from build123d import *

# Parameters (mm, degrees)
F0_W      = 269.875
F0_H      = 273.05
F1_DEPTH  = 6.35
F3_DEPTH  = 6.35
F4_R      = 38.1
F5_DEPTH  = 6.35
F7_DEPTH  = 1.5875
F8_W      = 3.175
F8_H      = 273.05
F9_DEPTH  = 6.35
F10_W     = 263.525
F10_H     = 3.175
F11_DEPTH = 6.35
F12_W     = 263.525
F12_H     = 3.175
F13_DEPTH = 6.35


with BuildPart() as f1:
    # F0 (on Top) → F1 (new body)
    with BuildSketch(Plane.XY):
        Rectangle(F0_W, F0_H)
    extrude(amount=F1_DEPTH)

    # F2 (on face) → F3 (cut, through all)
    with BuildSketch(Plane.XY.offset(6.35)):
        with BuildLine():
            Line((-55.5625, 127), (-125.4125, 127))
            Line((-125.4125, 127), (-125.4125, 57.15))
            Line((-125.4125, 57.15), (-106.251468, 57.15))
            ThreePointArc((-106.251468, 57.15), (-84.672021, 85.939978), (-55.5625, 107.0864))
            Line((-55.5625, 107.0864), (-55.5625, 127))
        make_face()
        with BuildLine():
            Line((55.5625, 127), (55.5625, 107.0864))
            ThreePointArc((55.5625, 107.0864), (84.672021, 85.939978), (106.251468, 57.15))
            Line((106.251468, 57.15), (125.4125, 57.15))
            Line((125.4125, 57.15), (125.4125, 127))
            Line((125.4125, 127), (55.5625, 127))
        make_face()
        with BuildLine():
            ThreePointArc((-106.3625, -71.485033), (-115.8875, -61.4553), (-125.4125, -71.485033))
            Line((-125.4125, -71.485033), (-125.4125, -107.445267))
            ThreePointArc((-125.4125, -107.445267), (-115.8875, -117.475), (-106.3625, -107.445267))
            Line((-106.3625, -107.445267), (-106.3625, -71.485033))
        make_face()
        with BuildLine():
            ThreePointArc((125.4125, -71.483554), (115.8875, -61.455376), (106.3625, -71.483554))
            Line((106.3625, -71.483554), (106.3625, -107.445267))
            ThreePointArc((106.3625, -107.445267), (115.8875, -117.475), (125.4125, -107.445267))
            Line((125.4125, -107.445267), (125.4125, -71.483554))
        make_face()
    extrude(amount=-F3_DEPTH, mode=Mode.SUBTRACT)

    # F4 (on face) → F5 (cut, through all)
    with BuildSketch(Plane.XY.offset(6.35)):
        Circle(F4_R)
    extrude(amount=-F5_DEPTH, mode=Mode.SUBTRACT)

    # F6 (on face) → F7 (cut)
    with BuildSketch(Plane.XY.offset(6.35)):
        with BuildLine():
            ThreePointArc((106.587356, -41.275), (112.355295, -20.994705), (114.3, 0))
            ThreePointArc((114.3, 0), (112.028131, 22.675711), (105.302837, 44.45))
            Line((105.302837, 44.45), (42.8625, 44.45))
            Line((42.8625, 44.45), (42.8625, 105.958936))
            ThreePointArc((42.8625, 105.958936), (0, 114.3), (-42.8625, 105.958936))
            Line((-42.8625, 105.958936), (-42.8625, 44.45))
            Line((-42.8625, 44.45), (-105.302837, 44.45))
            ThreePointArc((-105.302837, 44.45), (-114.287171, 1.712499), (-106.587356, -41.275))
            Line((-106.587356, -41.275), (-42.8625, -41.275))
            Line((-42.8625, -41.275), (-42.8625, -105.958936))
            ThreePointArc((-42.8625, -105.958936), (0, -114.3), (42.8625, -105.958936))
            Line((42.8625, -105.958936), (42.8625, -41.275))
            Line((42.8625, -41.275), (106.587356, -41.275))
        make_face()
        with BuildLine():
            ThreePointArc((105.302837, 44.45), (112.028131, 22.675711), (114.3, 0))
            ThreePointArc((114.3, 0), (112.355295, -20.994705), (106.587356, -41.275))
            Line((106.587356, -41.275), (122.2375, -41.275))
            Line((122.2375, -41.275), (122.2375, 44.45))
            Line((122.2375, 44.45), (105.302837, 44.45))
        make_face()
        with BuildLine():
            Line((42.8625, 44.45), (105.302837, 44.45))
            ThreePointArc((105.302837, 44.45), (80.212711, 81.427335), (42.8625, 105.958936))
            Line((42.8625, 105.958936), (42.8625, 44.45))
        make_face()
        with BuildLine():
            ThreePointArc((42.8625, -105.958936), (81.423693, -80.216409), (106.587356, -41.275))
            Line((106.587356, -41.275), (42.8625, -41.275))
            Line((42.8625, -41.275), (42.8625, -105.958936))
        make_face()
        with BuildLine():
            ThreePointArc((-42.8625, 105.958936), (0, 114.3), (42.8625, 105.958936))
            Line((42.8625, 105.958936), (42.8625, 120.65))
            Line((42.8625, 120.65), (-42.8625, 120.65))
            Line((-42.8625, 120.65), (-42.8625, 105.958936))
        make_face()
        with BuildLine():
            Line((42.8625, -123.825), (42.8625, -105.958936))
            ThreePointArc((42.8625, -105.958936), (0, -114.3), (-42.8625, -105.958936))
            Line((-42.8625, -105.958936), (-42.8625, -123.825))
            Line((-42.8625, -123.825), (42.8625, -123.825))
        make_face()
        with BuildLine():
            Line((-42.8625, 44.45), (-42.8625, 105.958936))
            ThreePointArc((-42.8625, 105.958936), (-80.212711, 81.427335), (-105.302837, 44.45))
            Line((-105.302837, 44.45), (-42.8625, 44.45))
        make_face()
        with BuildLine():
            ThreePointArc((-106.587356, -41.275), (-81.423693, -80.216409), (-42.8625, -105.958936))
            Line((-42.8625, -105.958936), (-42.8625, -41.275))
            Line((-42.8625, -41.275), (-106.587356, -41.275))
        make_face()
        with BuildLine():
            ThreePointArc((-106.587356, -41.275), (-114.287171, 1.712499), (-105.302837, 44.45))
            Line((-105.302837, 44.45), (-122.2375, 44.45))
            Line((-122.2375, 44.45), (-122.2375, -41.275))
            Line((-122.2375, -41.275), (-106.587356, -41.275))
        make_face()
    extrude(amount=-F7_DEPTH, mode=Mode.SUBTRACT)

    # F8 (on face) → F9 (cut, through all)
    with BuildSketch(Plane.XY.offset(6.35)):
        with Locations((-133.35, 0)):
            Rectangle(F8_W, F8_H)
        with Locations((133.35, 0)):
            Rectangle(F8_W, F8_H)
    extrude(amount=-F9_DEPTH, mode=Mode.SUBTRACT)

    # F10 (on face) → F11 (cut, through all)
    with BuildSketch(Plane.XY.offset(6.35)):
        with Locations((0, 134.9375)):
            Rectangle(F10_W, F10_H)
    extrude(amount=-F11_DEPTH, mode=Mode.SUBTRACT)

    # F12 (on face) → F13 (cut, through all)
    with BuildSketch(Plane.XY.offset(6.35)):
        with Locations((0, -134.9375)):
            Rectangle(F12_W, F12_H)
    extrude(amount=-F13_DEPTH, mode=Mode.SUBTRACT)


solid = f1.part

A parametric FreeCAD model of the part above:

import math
import FreeCAD as App
import Part
import Sketcher

V = App.Vector
Q = App.Units.Quantity


def add_polygon(sketch, points):
    """Adds a closed chain of lines whose ends are joined by coincident constraints."""
    first, n = sketch.GeometryCount, len(points)
    for a, b in zip(points, points[1:] + points[:1]):
        sketch.addGeometry(Part.LineSegment(App.Vector(*a, 0), App.Vector(*b, 0)), False)
    for i in range(n):
        sketch.addConstraint(Sketcher.Constraint("Coincident", first + i, 2, first + (i + 1) % n, 1))

doc = App.newDocument("Part")
body = doc.addObject("PartDesign::Body", "Body")

# Sketch on XY plane
sketch1 = body.newObject("Sketcher::SketchObject", "Sketch")
sketch1.AttachmentSupport = (doc.getObject("XY_Plane"), [""])
sketch1.MapMode = "FlatFace"
add_polygon(sketch1, [(-134.9375, 136.525), (-134.9375, -136.525), (134.9375, -136.525), (134.9375, 136.525)])  # lines 0-3
sketch1.addConstraint([
    Sketcher.Constraint("Vertical", 0),
    Sketcher.Constraint("Horizontal", 1),
    Sketcher.Constraint("Vertical", 2),
    Sketcher.Constraint("Horizontal", 3),
    Sketcher.Constraint("Symmetric", 0, 2, 2, 2, -1, 1),
    Sketcher.Constraint("DistanceY", 0, 2, 0, 1, Q("10.75 in")),
    Sketcher.Constraint("DistanceX", 1, 1, 1, 2, Q("10.625 in")),
])
pad1 = body.newObject("PartDesign::Pad", "Pad")
pad1.Profile = sketch1
pad1.Length = Q("0.25 in")

# Sketch on XY plane
sketch2 = body.newObject("Sketcher::SketchObject", "Sketch001")
sketch2.AttachmentSupport = (doc.getObject("XY_Plane"), [""])
sketch2.MapMode = "FlatFace"
sketch2.AttachmentOffset = App.Placement(V(0, 0, 0.25 * 25.4), App.Rotation())
sketch2.addGeometry([
    Part.LineSegment(V(-55.5625, 127, 0), V(-125.4125, 127, 0)),  # 0
    Part.LineSegment(V(-125.4125, 127, 0), V(-125.4125, 57.15, 0)),  # 1
    Part.LineSegment(V(-125.4125, 57.15, 0), V(-106.251468, 57.15, 0)),  # 2
    Part.ArcOfCircle(Part.Circle(V(-0.000008, -0.008087, 0), V(0, 0, 1), 120.649988), math.radians(117.421074), math.radians(151.721923)),  # 3
    Part.LineSegment(V(-55.5625, 107.0864, 0), V(-55.5625, 127, 0)),  # 4
    Part.LineSegment(V(55.5625, 127, 0), V(55.5625, 107.0864, 0)),  # 5
    Part.ArcOfCircle(Part.Circle(V(0.000008, -0.008087, 0), V(0, 0, 1), 120.649988), math.radians(28.278077), math.radians(62.578926)),  # 6
    Part.LineSegment(V(106.251468, 57.15, 0), V(125.4125, 57.15, 0)),  # 7
    Part.LineSegment(V(125.4125, 57.15, 0), V(125.4125, 127, 0)),  # 8
    Part.LineSegment(V(125.4125, 127, 0), V(55.5625, 127, 0)),  # 9
    Part.ArcOfCircle(Part.Circle(V(-115.8875, -70.993, 0), V(0, 0, 1), 9.5377), math.radians(-2.9571), math.radians(182.9571)),  # 10
    Part.LineSegment(V(-125.4125, -71.485033, 0), V(-125.4125, -107.445267, 0)),  # 11
    Part.ArcOfCircle(Part.Circle(V(-115.8875, -107.9373, 0), V(0, 0, 1), 9.5377), math.radians(177.0429), math.radians(362.9571)),  # 12
    Part.LineSegment(V(-106.3625, -107.445267, 0), V(-106.3625, -71.485033, 0)),  # 13
    Part.ArcOfCircle(Part.Circle(V(115.8875, -70.993, 0), V(0, 0, 1), 9.537624), math.radians(-2.948228), math.radians(182.948228)),  # 14
    Part.LineSegment(V(106.3625, -71.483554, 0), V(106.3625, -107.445267, 0)),  # 15
    Part.ArcOfCircle(Part.Circle(V(115.8875, -107.9373, 0), V(0, 0, 1), 9.5377), math.radians(177.0429), math.radians(362.9571)),  # 16
    Part.LineSegment(V(125.4125, -107.445267, 0), V(125.4125, -71.483554, 0)),  # 17
], False)
sketch2.addConstraint([
    Sketcher.Constraint("Coincident", 0, 2, 1, 1),
    Sketcher.Constraint("Coincident", 1, 2, 2, 1),
    Sketcher.Constraint("Coincident", 2, 2, 3, 2),
    Sketcher.Constraint("Coincident", 3, 1, 4, 1),
    Sketcher.Constraint("Coincident", 4, 2, 0, 1),
    Sketcher.Constraint("Coincident", 5, 2, 6, 2),
    Sketcher.Constraint("Coincident", 6, 1, 7, 1),
    Sketcher.Constraint("Coincident", 7, 2, 8, 1),
    Sketcher.Constraint("Coincident", 8, 2, 9, 1),
    Sketcher.Constraint("Coincident", 9, 2, 5, 1),
    Sketcher.Constraint("Coincident", 10, 2, 11, 1),
    Sketcher.Constraint("Coincident", 11, 2, 12, 1),
    Sketcher.Constraint("Coincident", 12, 2, 13, 1),
    Sketcher.Constraint("Coincident", 13, 2, 10, 1),
    Sketcher.Constraint("Coincident", 14, 2, 15, 1),
    Sketcher.Constraint("Coincident", 15, 2, 16, 1),
    Sketcher.Constraint("Coincident", 16, 2, 17, 1),
    Sketcher.Constraint("Coincident", 17, 2, 14, 1),
    Sketcher.Constraint("Horizontal", 0),
    Sketcher.Constraint("Vertical", 1),
    Sketcher.Constraint("Horizontal", 2),
    Sketcher.Constraint("Vertical", 4),
    Sketcher.Constraint("Vertical", 5),
    Sketcher.Constraint("Horizontal", 7),
    Sketcher.Constraint("Vertical", 8),
    Sketcher.Constraint("Horizontal", 9),
    Sketcher.Constraint("Vertical", 11),
    Sketcher.Constraint("Vertical", 13),
    Sketcher.Constraint("Vertical", 15),
    Sketcher.Constraint("Vertical", 17),
    Sketcher.Constraint("Equal", 3, 6),
    Sketcher.Constraint("Equal", 10, 12),
    Sketcher.Constraint("Equal", 12, 16),
    Sketcher.Constraint("Symmetric", 3, 3, 6, 3, -2),
    Sketcher.Constraint("Symmetric", 10, 3, 14, 3, -2),
    Sketcher.Constraint("Symmetric", 12, 3, 16, 3, -2),
    Sketcher.Constraint("Symmetric", 1, 2, 7, 2, -2),
    Sketcher.Constraint("Symmetric", 4, 2, 9, 2, -2),
    Sketcher.Constraint("Horizontal", 11, 2, 12, 2),
    Sketcher.Constraint("Horizontal", 10, 2, 13, 2),
    Sketcher.Constraint("Horizontal", 12, 2, 15, 2),
    Sketcher.Constraint("Horizontal", 15, 2, 16, 2),
    Sketcher.Constraint("Vertical", 1, 2, 10, 2),
    Sketcher.Constraint("Equal", 9, 1),
    Sketcher.Constraint("DistanceY", -1, 1, 0, 2, Q("5 in")),
    Sketcher.Constraint("DistanceX", 0, 2, 0, 1, Q("2.75 in")),
    Sketcher.Constraint("Radius", 10, Q("0.3755 in")),
    Sketcher.Constraint("DistanceX", 0, 2, 14, 3, Q("9.5 in")),
    Sketcher.Constraint("DistanceY", 4, 1, 4, 2, Q("0.784 in")),
    Sketcher.Constraint("DistanceX", 11, 2, 12, 2, Q("0.75 in")),
    Sketcher.Constraint("DistanceY", 10, 3, -1, 1, Q("2.795 in")),
    Sketcher.Constraint("Radius", 3, Q("120.649988 mm")),
    Sketcher.Constraint("DistanceY", 12, 3, -1, 1, Q("4.2495 in")),
    Sketcher.Constraint("Radius", 14, Q("9.537624 mm")),
    Sketcher.Constraint("DistanceX", 2, 1, 2, 2, Q("19.161032 mm")),
])
pocket1 = body.newObject("PartDesign::Pocket", "Pocket")
pocket1.Profile = sketch2
pocket1.Type = "ThroughAll"

# Sketch on XY plane
sketch3 = body.newObject("Sketcher::SketchObject", "Sketch002")
sketch3.AttachmentSupport = (doc.getObject("XY_Plane"), [""])
sketch3.MapMode = "FlatFace"
sketch3.AttachmentOffset = App.Placement(V(0, 0, 0.25 * 25.4), App.Rotation())
sketch3.addGeometry(Part.Circle(V(0, 0, 0), V(0, 0, 1), 38.1), False)
sketch3.addConstraint([
    Sketcher.Constraint("Coincident", 0, 3, -1, 1),
    Sketcher.Constraint("Diameter", 0, Q("3 in")),
])
pocket2 = body.newObject("PartDesign::Pocket", "Pocket001")
pocket2.Profile = sketch3
pocket2.Type = "ThroughAll"

# Sketch on XY plane
sketch4 = body.newObject("Sketcher::SketchObject", "Sketch003")
sketch4.AttachmentSupport = (doc.getObject("XY_Plane"), [""])
sketch4.MapMode = "FlatFace"
sketch4.AttachmentOffset = App.Placement(V(0, 0, 0.25 * 25.4), App.Rotation())
sketch4.addGeometry([
    Part.ArcOfCircle(Part.Circle(V(0, 0, 0), V(0, 0, 1), 114.3), math.radians(-158.831551), math.radians(-112.024313)),  # 0
    Part.LineSegment(V(-42.8625, -105.958936, 0), V(-42.8625, -123.825, 0)),  # 1
    Part.LineSegment(V(-42.8625, -123.825, 0), V(42.8625, -123.825, 0)),  # 2
    Part.LineSegment(V(42.8625, -123.825, 0), V(42.8625, -105.958936, 0)),  # 3
    Part.ArcOfCircle(Part.Circle(V(0, 0, 0), V(0, 0, 1), 114.3), math.radians(-67.975687), math.radians(-21.168449)),  # 4
    Part.LineSegment(V(106.587356, -41.275, 0), V(122.2375, -41.275, 0)),  # 5
    Part.LineSegment(V(122.2375, -41.275, 0), V(122.2375, 44.45, 0)),  # 6
    Part.LineSegment(V(122.2375, 44.45, 0), V(105.302837, 44.45, 0)),  # 7
    Part.ArcOfCircle(Part.Circle(V(-0.000005, -0.000004, 0), V(0, 0, 1), 114.300006), math.radians(22.885382), math.radians(67.975686)),  # 8
    Part.LineSegment(V(42.8625, 105.958936, 0), V(42.8625, 120.65, 0)),  # 9
    Part.LineSegment(V(42.8625, 120.65, 0), V(-42.8625, 120.65, 0)),  # 10
    Part.LineSegment(V(-42.8625, 120.65, 0), V(-42.8625, 105.958936, 0)),  # 11
    Part.ArcOfCircle(Part.Circle(V(0.000005, -0.000004, 0), V(0, 0, 1), 114.300006), math.radians(112.024314), math.radians(157.114618)),  # 12
    Part.LineSegment(V(-105.302837, 44.45, 0), V(-122.2375, 44.45, 0)),  # 13
    Part.LineSegment(V(-122.2375, 44.45, 0), V(-122.2375, -41.275, 0)),  # 14
    Part.LineSegment(V(-122.2375, -41.275, 0), V(-106.587356, -41.275, 0)),  # 15
], False)
sketch4.addConstraint([
    Sketcher.Constraint("Coincident", 0, 2, 1, 1),
    Sketcher.Constraint("Coincident", 1, 2, 2, 1),
    Sketcher.Constraint("Coincident", 2, 2, 3, 1),
    Sketcher.Constraint("Coincident", 3, 2, 4, 1),
    Sketcher.Constraint("Coincident", 4, 2, 5, 1),
    Sketcher.Constraint("Coincident", 5, 2, 6, 1),
    Sketcher.Constraint("Coincident", 6, 2, 7, 1),
    Sketcher.Constraint("Coincident", 7, 2, 8, 1),
    Sketcher.Constraint("Coincident", 8, 2, 9, 1),
    Sketcher.Constraint("Coincident", 9, 2, 10, 1),
    Sketcher.Constraint("Coincident", 10, 2, 11, 1),
    Sketcher.Constraint("Coincident", 11, 2, 12, 1),
    Sketcher.Constraint("Coincident", 12, 2, 13, 1),
    Sketcher.Constraint("Coincident", 13, 2, 14, 1),
    Sketcher.Constraint("Coincident", 14, 2, 15, 1),
    Sketcher.Constraint("Coincident", 15, 2, 0, 1),
    Sketcher.Constraint("Vertical", 1),
    Sketcher.Constraint("Horizontal", 2),
    Sketcher.Constraint("Vertical", 3),
    Sketcher.Constraint("Horizontal", 5),
    Sketcher.Constraint("Vertical", 6),
    Sketcher.Constraint("Horizontal", 7),
    Sketcher.Constraint("Vertical", 9),
    Sketcher.Constraint("Horizontal", 10),
    Sketcher.Constraint("Vertical", 11),
    Sketcher.Constraint("Horizontal", 13),
    Sketcher.Constraint("Vertical", 14),
    Sketcher.Constraint("Horizontal", 15),
    Sketcher.Constraint("Coincident", 0, 3, -1, 1),
    Sketcher.Constraint("Coincident", 4, 3, -1, 1),
    Sketcher.Constraint("Coincident", 8, 3, -1, 1),
    Sketcher.Constraint("Coincident", 12, 3, -1, 1),
    Sketcher.Constraint("Equal", 0, 4),
    Sketcher.Constraint("Equal", 8, 12),
    Sketcher.Constraint("Symmetric", 0, 2, 8, 2, -1, 1),
    Sketcher.Constraint("Symmetric", 6, 2, 13, 2, -2),
    Sketcher.Constraint("Horizontal", 0, 2, 3, 2),
    Sketcher.Constraint("Horizontal", 8, 2, 11, 2),
    Sketcher.Constraint("Horizontal", 5, 2, 14, 2),
    Sketcher.Constraint("Equal", 10, 6),
    Sketcher.Constraint("Radius", 0, Q("4.5 in")),
    Sketcher.Constraint("DistanceY", 7, 2, 9, 2, Q("3 in")),
    Sketcher.Constraint("DistanceX", 2, 1, 2, 2, Q("3.375 in")),
    Sketcher.Constraint("DistanceY", -1, 1, 6, 2, Q("1.75 in")),
    Sketcher.Constraint("DistanceY", 2, 2, 4, 2, Q("3.25 in")),
    Sketcher.Constraint("DistanceX", -1, 1, 5, 2, Q("4.8125 in")),
])
pocket3 = body.newObject("PartDesign::Pocket", "Pocket002")
pocket3.Profile = sketch4
pocket3.Length = Q("0.0625 in")

# Sketch on XY plane
sketch5 = body.newObject("Sketcher::SketchObject", "Sketch004")
sketch5.AttachmentSupport = (doc.getObject("XY_Plane"), [""])
sketch5.MapMode = "FlatFace"
sketch5.AttachmentOffset = App.Placement(V(0, 0, 0.25 * 25.4), App.Rotation())
add_polygon(sketch5, [(-134.9375, 136.525), (-134.9375, -136.525), (-131.7625, -136.525), (-131.7625, 136.525)])  # lines 0-3
add_polygon(sketch5, [(131.7625, 136.525), (131.7625, -136.525), (134.9375, -136.525), (134.9375, 136.525)])  # lines 4-7
sketch5.addConstraint([
    Sketcher.Constraint("Vertical", 0),
    Sketcher.Constraint("Horizontal", 1),
    Sketcher.Constraint("Vertical", 2),
    Sketcher.Constraint("Horizontal", 3),
    Sketcher.Constraint("Vertical", 4),
    Sketcher.Constraint("Horizontal", 5),
    Sketcher.Constraint("Vertical", 6),
    Sketcher.Constraint("Horizontal", 7),
    Sketcher.Constraint("Symmetric", 2, 2, 4, 2, -1, 1),
    Sketcher.Constraint("Symmetric", 0, 2, 6, 2, -1, 1),
    Sketcher.Constraint("Horizontal", 1, 2, 4, 2),
    Sketcher.Constraint("DistanceY", 0, 2, 0, 1, Q("10.75 in")),
    Sketcher.Constraint("DistanceX", 0, 2, 4, 2, Q("10.5 in")),
    Sketcher.Constraint("DistanceX", 1, 1, 1, 2, Q("0.125 in")),
])
pocket4 = body.newObject("PartDesign::Pocket", "Pocket003")
pocket4.Profile = sketch5
pocket4.Type = "ThroughAll"

# Sketch on XY plane
sketch6 = body.newObject("Sketcher::SketchObject", "Sketch005")
sketch6.AttachmentSupport = (doc.getObject("XY_Plane"), [""])
sketch6.MapMode = "FlatFace"
sketch6.AttachmentOffset = App.Placement(V(0, 0, 0.25 * 25.4), App.Rotation())
add_polygon(sketch6, [(-131.7625, 136.525), (-131.7625, 133.35), (131.7625, 133.35), (131.7625, 136.525)])  # lines 0-3
sketch6.addConstraint([
    Sketcher.Constraint("Vertical", 0),
    Sketcher.Constraint("Horizontal", 1),
    Sketcher.Constraint("Vertical", 2),
    Sketcher.Constraint("Horizontal", 3),
    Sketcher.Constraint("DistanceX", 1, 1, 1, 2, Q("10.375 in")),
    Sketcher.Constraint("DistanceY", 0, 2, 0, 1, Q("0.125 in")),
    Sketcher.Constraint("DistanceY", -1, 1, 0, 2, Q("5.25 in")),
    Sketcher.Constraint("DistanceX", 0, 2, -1, 1, Q("5.1875 in")),
])
pocket5 = body.newObject("PartDesign::Pocket", "Pocket004")
pocket5.Profile = sketch6
pocket5.Type = "ThroughAll"

# Sketch on XY plane
sketch7 = body.newObject("Sketcher::SketchObject", "Sketch006")
sketch7.AttachmentSupport = (doc.getObject("XY_Plane"), [""])
sketch7.MapMode = "FlatFace"
sketch7.AttachmentOffset = App.Placement(V(0, 0, 0.25 * 25.4), App.Rotation())
add_polygon(sketch7, [(-131.7625, -133.35), (-131.7625, -136.525), (131.7625, -136.525), (131.7625, -133.35)])  # lines 0-3
sketch7.addConstraint([
    Sketcher.Constraint("Vertical", 0),
    Sketcher.Constraint("Horizontal", 1),
    Sketcher.Constraint("Vertical", 2),
    Sketcher.Constraint("Horizontal", 3),
    Sketcher.Constraint("DistanceX", 1, 1, 1, 2, Q("10.375 in")),
    Sketcher.Constraint("DistanceY", 0, 2, 0, 1, Q("0.125 in")),
    Sketcher.Constraint("DistanceY", 2, 2, -1, 1, Q("5.25 in")),
    Sketcher.Constraint("DistanceX", 0, 2, -1, 1, Q("5.1875 in")),
])
pocket6 = body.newObject("PartDesign::Pocket", "Pocket005")
pocket6.Profile = sketch7
pocket6.Type = "ThroughAll"

doc.recompute()
